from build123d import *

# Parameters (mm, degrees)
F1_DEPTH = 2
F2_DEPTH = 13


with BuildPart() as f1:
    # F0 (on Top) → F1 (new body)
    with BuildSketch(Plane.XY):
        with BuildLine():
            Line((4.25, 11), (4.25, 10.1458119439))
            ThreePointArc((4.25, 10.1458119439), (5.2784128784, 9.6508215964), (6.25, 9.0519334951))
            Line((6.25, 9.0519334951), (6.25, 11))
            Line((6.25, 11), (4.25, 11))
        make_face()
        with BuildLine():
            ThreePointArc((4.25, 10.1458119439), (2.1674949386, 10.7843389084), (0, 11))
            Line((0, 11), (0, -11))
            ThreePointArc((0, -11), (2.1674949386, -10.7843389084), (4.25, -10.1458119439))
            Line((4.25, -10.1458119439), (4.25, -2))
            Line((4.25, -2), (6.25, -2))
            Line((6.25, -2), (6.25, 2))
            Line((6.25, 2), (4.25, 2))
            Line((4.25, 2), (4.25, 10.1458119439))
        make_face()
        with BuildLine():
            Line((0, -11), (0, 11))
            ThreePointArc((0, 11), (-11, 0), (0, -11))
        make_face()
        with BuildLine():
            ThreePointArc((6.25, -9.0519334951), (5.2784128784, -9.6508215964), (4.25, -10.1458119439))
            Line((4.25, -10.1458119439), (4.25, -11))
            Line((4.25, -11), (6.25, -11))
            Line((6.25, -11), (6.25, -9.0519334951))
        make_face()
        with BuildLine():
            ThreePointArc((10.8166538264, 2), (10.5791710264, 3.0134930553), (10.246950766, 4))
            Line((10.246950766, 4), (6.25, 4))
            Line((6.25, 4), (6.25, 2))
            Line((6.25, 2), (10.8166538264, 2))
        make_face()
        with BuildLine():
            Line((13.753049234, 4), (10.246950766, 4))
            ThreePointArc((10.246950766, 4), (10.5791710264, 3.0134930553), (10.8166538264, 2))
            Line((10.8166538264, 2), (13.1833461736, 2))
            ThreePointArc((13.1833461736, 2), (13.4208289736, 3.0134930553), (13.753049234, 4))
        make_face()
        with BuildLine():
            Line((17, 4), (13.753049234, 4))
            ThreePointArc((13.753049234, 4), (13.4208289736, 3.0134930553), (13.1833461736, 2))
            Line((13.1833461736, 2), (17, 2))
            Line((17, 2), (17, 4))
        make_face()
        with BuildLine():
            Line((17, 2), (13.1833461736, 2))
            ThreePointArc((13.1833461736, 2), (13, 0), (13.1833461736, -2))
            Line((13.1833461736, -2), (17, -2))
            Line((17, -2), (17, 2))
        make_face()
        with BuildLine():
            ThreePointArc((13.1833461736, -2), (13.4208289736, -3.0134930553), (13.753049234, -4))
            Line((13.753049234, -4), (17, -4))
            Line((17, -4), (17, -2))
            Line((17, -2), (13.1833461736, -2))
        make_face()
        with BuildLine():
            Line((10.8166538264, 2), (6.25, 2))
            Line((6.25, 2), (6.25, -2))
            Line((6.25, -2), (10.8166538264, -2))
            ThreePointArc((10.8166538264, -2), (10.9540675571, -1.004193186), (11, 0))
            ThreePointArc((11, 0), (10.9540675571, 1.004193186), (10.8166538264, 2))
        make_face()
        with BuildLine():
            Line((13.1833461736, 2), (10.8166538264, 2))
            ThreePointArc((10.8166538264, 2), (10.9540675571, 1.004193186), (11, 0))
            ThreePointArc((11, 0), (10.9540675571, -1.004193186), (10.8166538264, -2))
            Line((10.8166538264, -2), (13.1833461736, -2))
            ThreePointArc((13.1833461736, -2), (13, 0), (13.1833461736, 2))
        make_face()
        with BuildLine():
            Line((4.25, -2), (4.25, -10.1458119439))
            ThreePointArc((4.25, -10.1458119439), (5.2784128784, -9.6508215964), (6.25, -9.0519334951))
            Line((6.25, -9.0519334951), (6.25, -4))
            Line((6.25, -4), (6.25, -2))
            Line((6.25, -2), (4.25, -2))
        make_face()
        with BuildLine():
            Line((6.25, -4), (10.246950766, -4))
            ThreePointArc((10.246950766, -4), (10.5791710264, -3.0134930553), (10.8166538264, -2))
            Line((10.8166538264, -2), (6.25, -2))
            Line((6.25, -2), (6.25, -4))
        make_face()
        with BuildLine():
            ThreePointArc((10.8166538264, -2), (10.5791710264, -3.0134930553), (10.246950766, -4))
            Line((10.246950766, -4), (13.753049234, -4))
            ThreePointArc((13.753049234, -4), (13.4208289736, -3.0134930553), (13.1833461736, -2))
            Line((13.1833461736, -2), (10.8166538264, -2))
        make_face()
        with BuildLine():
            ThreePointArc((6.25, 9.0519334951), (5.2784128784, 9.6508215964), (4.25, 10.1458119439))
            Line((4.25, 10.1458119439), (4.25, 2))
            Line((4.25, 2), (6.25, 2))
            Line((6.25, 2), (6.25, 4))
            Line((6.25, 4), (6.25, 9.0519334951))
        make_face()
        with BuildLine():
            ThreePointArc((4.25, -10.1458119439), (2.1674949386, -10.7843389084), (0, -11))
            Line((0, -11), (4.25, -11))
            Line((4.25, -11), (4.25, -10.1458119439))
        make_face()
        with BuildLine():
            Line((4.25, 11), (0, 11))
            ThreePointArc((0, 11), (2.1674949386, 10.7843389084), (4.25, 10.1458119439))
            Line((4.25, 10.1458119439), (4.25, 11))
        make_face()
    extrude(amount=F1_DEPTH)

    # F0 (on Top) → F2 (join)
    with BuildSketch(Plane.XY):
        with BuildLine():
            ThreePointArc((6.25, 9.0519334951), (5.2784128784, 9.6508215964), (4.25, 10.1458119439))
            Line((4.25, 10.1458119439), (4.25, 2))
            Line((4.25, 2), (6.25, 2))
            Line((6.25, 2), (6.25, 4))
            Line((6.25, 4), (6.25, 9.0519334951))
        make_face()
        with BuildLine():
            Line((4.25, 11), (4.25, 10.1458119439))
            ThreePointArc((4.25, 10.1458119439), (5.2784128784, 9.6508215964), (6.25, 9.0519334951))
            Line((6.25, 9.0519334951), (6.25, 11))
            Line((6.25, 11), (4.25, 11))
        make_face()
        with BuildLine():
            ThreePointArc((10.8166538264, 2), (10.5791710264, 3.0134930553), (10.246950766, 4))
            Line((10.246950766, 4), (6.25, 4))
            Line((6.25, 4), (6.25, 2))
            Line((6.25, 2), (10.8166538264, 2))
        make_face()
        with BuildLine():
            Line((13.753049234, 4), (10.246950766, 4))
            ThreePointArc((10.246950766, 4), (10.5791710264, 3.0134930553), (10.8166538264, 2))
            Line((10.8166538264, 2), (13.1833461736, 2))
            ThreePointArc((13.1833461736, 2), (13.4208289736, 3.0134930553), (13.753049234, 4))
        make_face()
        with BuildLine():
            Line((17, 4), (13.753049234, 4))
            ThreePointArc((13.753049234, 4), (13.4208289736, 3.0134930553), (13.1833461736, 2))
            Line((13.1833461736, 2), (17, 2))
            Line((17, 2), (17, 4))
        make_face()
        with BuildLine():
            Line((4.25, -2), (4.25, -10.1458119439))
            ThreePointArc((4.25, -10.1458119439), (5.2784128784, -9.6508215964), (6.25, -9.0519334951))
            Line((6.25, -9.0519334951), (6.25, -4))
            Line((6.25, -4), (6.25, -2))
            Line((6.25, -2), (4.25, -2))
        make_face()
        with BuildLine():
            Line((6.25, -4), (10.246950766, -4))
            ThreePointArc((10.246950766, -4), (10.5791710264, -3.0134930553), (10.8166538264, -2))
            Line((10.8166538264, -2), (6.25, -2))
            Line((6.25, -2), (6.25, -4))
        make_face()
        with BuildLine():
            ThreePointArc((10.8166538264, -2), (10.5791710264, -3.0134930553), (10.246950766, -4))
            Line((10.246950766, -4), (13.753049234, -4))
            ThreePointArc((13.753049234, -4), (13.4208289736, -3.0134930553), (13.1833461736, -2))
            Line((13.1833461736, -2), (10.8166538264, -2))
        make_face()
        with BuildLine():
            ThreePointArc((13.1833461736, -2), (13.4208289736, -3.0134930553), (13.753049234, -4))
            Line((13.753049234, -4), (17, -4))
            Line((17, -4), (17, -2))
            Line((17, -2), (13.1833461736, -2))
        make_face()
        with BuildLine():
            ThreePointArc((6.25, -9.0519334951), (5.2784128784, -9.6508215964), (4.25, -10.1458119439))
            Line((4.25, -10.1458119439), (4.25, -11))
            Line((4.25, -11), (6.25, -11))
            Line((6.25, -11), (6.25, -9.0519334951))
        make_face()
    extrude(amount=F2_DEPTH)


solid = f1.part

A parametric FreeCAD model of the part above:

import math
import FreeCAD as App
import Part
import Sketcher


def add_polygon(sketch, points):
    """Adds a closed chain of lines whose ends are joined by coincident constraints."""
    first, n = sketch.GeometryCount, len(points)
    for a, b in zip(points, points[1:] + points[:1]):
        sketch.addGeometry(Part.LineSegment(App.Vector(*a, 0), App.Vector(*b, 0)), False)
    for i in range(n):
        sketch.addConstraint(Sketcher.Constraint("Coincident", first + i, 2, first + (i + 1) % n, 1))

doc = App.newDocument("Part")
body = doc.addObject("PartDesign::Body", "Body")

sketch1 = body.newObject("Sketcher::SketchObject", "Sketch")
sketch1.AttachmentSupport = (doc.getObject("XY_Plane"), [""])
sketch1.MapMode = "FlatFace"
sketch1.addGeometry(Part.ArcOfCircle(Part.Circle(App.Vector(0, 0, 0), App.Vector(0, 0, 1), 11), math.radians(90), math.radians(270)), False)
sketch1.addGeometry(Part.LineSegment(App.Vector(0, -11, 0), App.Vector(6.25, -11, 0)), False)
sketch1.addGeometry(Part.LineSegment(App.Vector(6.25, -11, 0), App.Vector(6.25, -4, 0)), False)
sketch1.addGeometry(Part.LineSegment(App.Vector(6.25, -4, 0), App.Vector(17, -4, 0)), False)
sketch1.addGeometry(Part.LineSegment(App.Vector(17, -4, 0), App.Vector(17, 4, 0)), False)
sketch1.addGeometry(Part.LineSegment(App.Vector(17, 4, 0), App.Vector(6.25, 4, 0)), False)
sketch1.addGeometry(Part.LineSegment(App.Vector(6.25, 4, 0), App.Vector(6.25, 11, 0)), False)
sketch1.addGeometry(Part.LineSegment(App.Vector(6.25, 11, 0), App.Vector(0, 11, 0)), False)
sketch1.addConstraint(Sketcher.Constraint("Tangent", 0, 2, 1, 1))
sketch1.addConstraint(Sketcher.Constraint("Coincident", 1, 2, 2, 1))
sketch1.addConstraint(Sketcher.Constraint("Coincident", 2, 2, 3, 1))
sketch1.addConstraint(Sketcher.Constraint("Coincident", 3, 2, 4, 1))
sketch1.addConstraint(Sketcher.Constraint("Coincident", 4, 2, 5, 1))
sketch1.addConstraint(Sketcher.Constraint("Coincident", 5, 2, 6, 1))
sketch1.addConstraint(Sketcher.Constraint("Coincident", 6, 2, 7, 1))
sketch1.addConstraint(Sketcher.Constraint("Tangent", 7, 2, 0, 1))
sketch1.addConstraint(Sketcher.Constraint("Horizontal", 1))
sketch1.addConstraint(Sketcher.Constraint("Vertical", 2))
sketch1.addConstraint(Sketcher.Constraint("Horizontal", 3))
sketch1.addConstraint(Sketcher.Constraint("Vertical", 4))
sketch1.addConstraint(Sketcher.Constraint("Horizontal", 5))
sketch1.addConstraint(Sketcher.Constraint("Vertical", 6))
sketch1.addConstraint(Sketcher.Constraint("Horizontal", 7))
sketch1.addConstraint(Sketcher.Constraint("Coincident", 0, 3, -1, 1))
sketch1.addConstraint(Sketcher.Constraint("Symmetric", 2, 2, 5, 2, -1))
sketch1.addConstraint(Sketcher.Constraint("Radius", 0, 11.0))
sketch1.addConstraint(Sketcher.Constraint("DistanceY", 2, 1, 2, 2, 7.0))
sketch1.addConstraint(Sketcher.Constraint("DistanceX", -1, 1, 3, 2, 17.0))
sketch1.addConstraint(Sketcher.Constraint("DistanceX", 1, 1, 1, 2, 6.25))
pad1 = body.newObject("PartDesign::Pad", "Pad")
pad1.Profile = sketch1
pad1.Length = 2

sketch2 = body.newObject("Sketcher::SketchObject", "Sketch001")
sketch2.AttachmentSupport = (doc.getObject("XY_Plane"), [""])
sketch2.MapMode = "FlatFace"
add_polygon(sketch2, [(4.25, 2), (17, 2), (17, 4), (6.25, 4), (6.25, 11), (4.25, 11)])
add_polygon(sketch2, [(4.25, -2), (4.25, -11), (6.25, -11), (6.25, -4), (17, -4), (17, -2)])
sketch2.addConstraint(Sketcher.Constraint("Horizontal", 0))
sketch2.addConstraint(Sketcher.Constraint("Vertical", 1))
sketch2.addConstraint(Sketcher.Constraint("Horizontal", 2))
sketch2.addConstraint(Sketcher.Constraint("Vertical", 3))
sketch2.addConstraint(Sketcher.Constraint("Horizontal", 4))
sketch2.addConstraint(Sketcher.Constraint("Vertical", 5))
sketch2.addConstraint(Sketcher.Constraint("Vertical", 6))
sketch2.addConstraint(Sketcher.Constraint("Horizontal", 7))
sketch2.addConstraint(Sketcher.Constraint("Vertical", 8))
sketch2.addConstraint(Sketcher.Constraint("Horizontal", 9))
sketch2.addConstraint(Sketcher.Constraint("Vertical", 10))
sketch2.addConstraint(Sketcher.Constraint("Horizontal", 11))
sketch2.addConstraint(Sketcher.Constraint("Symmetric", 4, 2, 6, 2, -1))
sketch2.addConstraint(Sketcher.Constraint("Symmetric", 2, 2, 8, 2, -1))
sketch2.addConstraint(Sketcher.Constraint("Symmetric", 0, 2, 10, 2, -1))
sketch2.addConstraint(Sketcher.Constraint("Equal", 7, 1))
sketch2.addConstraint(Sketcher.Constraint("DistanceX", 4, 2, 4, 1, 2.0))
sketch2.addConstraint(Sketcher.Constraint("DistanceY", 3, 1, 3, 2, 7.0))
sketch2.addConstraint(Sketcher.Constraint("DistanceX", -1, 1, 0, 2, 17.0))
sketch2.addConstraint(Sketcher.Constraint("DistanceY", -1, 1, 0, 2, 2.0))
sketch2.addConstraint(Sketcher.Constraint("DistanceX", 0, 1, 0, 2, 12.75))
pad2 = body.newObject("PartDesign::Pad", "Pad001")
pad2.Profile = sketch2
pad2.Length = 13

doc.recompute()
